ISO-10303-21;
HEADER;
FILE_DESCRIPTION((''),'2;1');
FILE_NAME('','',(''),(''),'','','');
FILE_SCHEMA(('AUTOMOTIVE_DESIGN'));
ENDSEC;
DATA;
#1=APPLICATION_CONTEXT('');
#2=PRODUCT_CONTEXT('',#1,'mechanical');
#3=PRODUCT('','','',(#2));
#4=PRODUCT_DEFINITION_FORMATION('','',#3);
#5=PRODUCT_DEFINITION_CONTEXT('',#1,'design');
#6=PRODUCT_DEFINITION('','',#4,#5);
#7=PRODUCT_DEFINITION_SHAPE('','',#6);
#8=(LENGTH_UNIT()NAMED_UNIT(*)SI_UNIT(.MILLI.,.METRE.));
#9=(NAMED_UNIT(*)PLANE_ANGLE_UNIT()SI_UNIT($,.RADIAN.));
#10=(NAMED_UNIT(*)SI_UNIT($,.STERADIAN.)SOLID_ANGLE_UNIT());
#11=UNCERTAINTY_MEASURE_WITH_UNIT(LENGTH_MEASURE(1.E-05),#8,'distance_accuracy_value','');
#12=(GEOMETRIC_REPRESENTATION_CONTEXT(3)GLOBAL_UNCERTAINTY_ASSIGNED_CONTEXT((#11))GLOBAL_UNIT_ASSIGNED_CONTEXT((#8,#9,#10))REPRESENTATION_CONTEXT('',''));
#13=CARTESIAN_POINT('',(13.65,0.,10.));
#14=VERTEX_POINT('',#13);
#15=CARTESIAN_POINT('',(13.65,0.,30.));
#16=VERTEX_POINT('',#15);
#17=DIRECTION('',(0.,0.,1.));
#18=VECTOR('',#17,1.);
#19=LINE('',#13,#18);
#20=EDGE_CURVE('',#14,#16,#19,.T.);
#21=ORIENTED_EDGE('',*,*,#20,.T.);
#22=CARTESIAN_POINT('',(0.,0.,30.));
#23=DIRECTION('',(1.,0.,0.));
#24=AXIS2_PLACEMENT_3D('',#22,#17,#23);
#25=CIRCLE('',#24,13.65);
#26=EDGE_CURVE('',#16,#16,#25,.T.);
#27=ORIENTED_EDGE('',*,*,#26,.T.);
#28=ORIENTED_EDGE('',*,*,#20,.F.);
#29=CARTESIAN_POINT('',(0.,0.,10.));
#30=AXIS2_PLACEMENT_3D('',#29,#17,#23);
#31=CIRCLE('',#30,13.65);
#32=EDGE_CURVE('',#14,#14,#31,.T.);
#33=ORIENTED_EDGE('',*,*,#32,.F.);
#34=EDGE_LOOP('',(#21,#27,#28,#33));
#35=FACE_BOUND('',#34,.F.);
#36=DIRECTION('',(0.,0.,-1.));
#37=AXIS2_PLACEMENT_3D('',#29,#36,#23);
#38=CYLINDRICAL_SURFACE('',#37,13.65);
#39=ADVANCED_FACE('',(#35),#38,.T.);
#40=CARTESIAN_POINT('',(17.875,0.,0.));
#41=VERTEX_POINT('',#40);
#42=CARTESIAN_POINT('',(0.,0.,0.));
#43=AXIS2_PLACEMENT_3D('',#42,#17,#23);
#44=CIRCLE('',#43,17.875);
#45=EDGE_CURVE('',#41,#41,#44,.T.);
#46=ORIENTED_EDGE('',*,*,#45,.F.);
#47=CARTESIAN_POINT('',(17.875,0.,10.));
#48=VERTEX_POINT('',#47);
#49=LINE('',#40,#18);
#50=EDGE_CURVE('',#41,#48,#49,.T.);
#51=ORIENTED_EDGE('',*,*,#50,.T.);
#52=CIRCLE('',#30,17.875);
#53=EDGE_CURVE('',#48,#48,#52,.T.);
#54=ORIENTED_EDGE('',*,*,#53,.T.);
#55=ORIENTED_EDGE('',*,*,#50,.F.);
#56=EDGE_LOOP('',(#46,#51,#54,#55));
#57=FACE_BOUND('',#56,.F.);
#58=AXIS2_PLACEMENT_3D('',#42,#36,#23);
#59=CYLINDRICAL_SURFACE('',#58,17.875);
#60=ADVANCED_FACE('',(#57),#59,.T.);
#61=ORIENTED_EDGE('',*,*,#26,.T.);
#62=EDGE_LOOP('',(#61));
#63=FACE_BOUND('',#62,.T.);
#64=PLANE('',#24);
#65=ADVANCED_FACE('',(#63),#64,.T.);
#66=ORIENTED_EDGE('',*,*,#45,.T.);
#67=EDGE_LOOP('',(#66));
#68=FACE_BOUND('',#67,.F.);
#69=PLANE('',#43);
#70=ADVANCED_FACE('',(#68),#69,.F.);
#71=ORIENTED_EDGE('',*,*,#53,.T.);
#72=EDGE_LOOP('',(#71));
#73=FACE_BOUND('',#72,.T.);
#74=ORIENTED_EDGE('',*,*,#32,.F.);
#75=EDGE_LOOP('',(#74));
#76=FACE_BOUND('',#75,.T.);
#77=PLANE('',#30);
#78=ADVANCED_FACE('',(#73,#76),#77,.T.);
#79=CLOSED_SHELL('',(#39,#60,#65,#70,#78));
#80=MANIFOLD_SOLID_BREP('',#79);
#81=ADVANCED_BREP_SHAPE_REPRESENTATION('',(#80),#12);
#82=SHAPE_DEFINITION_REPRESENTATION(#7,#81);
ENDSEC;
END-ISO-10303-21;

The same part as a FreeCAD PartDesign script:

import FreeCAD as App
import Part
import Sketcher

V = App.Vector

doc = App.newDocument("Part")
body = doc.addObject("PartDesign::Body", "Body")

# Sketch on XY plane
sketch1 = body.newObject("Sketcher::SketchObject", "Sketch")
sketch1.AttachmentSupport = (doc.getObject("XY_Plane"), [""])
sketch1.MapMode = "FlatFace"
sketch1.addGeometry(Part.Circle(V(0, 0, 0), V(0, 0, 1), 18), False)
sketch1.addConstraint([
    Sketcher.Constraint("Coincident", 0, 3, -1, 1),
    Sketcher.Constraint("Diameter", 0, 35.75),
])
pad1 = body.newObject("PartDesign::Pad", "Pad")
pad1.Profile = sketch1
pad1.Length = 10

# Sketch on XY plane
sketch2 = body.newObject("Sketcher::SketchObject", "Sketch001")
sketch2.AttachmentSupport = (doc.getObject("XY_Plane"), [""])
sketch2.MapMode = "FlatFace"
sketch2.AttachmentOffset = App.Placement(V(0, 0, 10), App.Rotation())
sketch2.addGeometry(Part.Circle(V(0, 0, 0), V(0, 0, 1), 14), False)
sketch2.addConstraint([
    Sketcher.Constraint("Coincident", 0, 3, -1, 1),
    Sketcher.Constraint("Diameter", 0, 27.3),
])
pad2 = body.newObject("PartDesign::Pad", "Pad001")
pad2.Profile = sketch2
pad2.Length = 20

doc.recompute()
